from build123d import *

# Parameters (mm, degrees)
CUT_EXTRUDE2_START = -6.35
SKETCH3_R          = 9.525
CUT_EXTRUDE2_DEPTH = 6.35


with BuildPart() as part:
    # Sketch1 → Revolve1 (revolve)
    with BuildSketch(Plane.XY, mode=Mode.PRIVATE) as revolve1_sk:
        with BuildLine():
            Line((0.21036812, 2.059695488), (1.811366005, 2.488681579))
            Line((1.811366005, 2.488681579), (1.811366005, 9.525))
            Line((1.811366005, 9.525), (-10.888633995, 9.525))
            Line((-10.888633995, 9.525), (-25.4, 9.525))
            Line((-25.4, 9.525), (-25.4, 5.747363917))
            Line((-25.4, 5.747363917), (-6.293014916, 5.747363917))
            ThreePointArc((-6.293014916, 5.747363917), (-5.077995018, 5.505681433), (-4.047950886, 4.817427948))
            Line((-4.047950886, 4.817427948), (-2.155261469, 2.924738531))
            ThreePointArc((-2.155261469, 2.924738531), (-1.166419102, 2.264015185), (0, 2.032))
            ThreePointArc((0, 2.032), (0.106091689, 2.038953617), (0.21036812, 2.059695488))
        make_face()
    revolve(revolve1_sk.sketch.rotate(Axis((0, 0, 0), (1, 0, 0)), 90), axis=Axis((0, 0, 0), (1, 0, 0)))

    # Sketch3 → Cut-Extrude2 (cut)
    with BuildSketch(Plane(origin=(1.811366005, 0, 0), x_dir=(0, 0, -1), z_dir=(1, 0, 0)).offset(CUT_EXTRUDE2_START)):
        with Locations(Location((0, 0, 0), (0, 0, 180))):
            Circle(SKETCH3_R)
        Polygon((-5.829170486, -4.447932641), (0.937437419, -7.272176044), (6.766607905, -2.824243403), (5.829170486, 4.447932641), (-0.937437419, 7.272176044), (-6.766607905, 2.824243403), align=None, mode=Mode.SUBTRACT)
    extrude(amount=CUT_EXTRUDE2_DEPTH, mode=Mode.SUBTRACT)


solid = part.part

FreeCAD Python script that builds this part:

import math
import FreeCAD as App
import Part
import Sketcher
Q = App.Units.Quantity


def add_polygon(sketch, points):
    """Adds a closed chain of lines whose ends are joined by coincident constraints."""
    first, n = sketch.GeometryCount, len(points)
    for a, b in zip(points, points[1:] + points[:1]):
        sketch.addGeometry(Part.LineSegment(App.Vector(*a, 0), App.Vector(*b, 0)), False)
    for i in range(n):
        sketch.addConstraint(Sketcher.Constraint("Coincident", first + i, 2, first + (i + 1) % n, 1))

doc = App.newDocument("Part")
params = doc.addObject("Spreadsheet::Sheet", "Params")
for row, (alias, value) in enumerate([
    ("sketch1_radius", "0.12 in"),
    ("sketch1_radius2", "0.125 in"),
    ("sketch1_radius3", "0.032 in"),
    ("revolution_angle", "360 deg"),
    ("sketch2_diameter", "0.75 in"),
    ("pocket1_length", "0.25 in"),
], start=1):
    params.set(f"A{row}", alias)
    params.set(f"B{row}", "=" + value)
    params.setAlias(f"B{row}", alias)

body = doc.addObject("PartDesign::Body", "Body")

sketch1 = body.newObject("Sketcher::SketchObject", "Sketch")
sketch1.AttachmentSupport = (doc.getObject("XY_Plane"), [""])
sketch1.MapMode = "FlatFace"
sketch1.addGeometry([
    Part.LineSegment(App.Vector(0.210368, 2.059695, 0), App.Vector(1.811366, 2.488682, 0)),
    Part.LineSegment(App.Vector(1.811366, 2.488682, 0), App.Vector(1.811366, 9.525, 0)),
    Part.LineSegment(App.Vector(1.811366, 9.525, 0), App.Vector(-25.4, 9.525, 0)),
    Part.LineSegment(App.Vector(-25.4, 9.525, 0), App.Vector(-25.4, 5.747364, 0)),
    Part.LineSegment(App.Vector(-25.4, 5.747364, 0), App.Vector(-6.293015, 5.747364, 0)),
    Part.ArcOfCircle(Part.Circle(App.Vector(-6.293015, 2.572364, 0), App.Vector(0, 0, 1), 3.175), math.radians(45), math.radians(90)),
    Part.LineSegment(App.Vector(-4.047951, 4.817428, 0), App.Vector(-2.155261, 2.924739, 0)),
    Part.ArcOfCircle(Part.Circle(App.Vector(0, 5.08, 0), App.Vector(0, 0, 1), 3.048), math.radians(-135), math.radians(-90)),
    Part.ArcOfCircle(Part.Circle(App.Vector(0, 2.8448, 0), App.Vector(0, 0, 1), 0.8128), math.radians(-90), math.radians(-75.000001)),
], False)
sketch1.addConstraint([
    Sketcher.Constraint("Coincident", 0, 2, 1, 1),
    Sketcher.Constraint("Coincident", 1, 2, 2, 1),
    Sketcher.Constraint("Coincident", 2, 2, 3, 1),
    Sketcher.Constraint("Coincident", 3, 2, 4, 1),
    Sketcher.Constraint("Tangent", 4, 2, 5, 2),
    Sketcher.Constraint("Tangent", 5, 1, 6, 1),
    Sketcher.Constraint("Tangent", 6, 2, 7, 1),
    Sketcher.Constraint("Tangent", 7, 2, 8, 1),
    Sketcher.Constraint("Tangent", 8, 2, 0, 1),
    Sketcher.Constraint("Vertical", 1),
    Sketcher.Constraint("Horizontal", 2),
    Sketcher.Constraint("Vertical", 3),
    Sketcher.Constraint("Horizontal", 4),
    Sketcher.Constraint("PointOnObject", 7, 3, -2),
    Sketcher.Constraint("PointOnObject", 8, 3, -2),
    Sketcher.Constraint("Radius", 7, Q("0.12 in")),
    Sketcher.Constraint("DistanceX", 2, 2, -1, 1, Q("1 in")),
    Sketcher.Constraint("Angle", 0, Q("15 deg")),
    Sketcher.Constraint("Angle", 6, Q("-45 deg")),
    Sketcher.Constraint("Radius", 5, Q("0.125 in")),
    Sketcher.Constraint("Radius", 8, Q("0.032 in")),
    Sketcher.Constraint("DistanceY", -1, 1, 7, 3, Q("0.2 in")),
    Sketcher.Constraint("DistanceY", -1, 1, 1, 2, Q("0.375 in")),
    Sketcher.Constraint("DistanceY", 1, 1, 1, 2, 7.036318),
    Sketcher.Constraint("DistanceX", 4, 1, 4, 2, 19.106985),
])
sketch1.setExpression("Constraints[15]", "Params.sketch1_radius")
sketch1.setExpression("Constraints[19]", "Params.sketch1_radius2")
sketch1.setExpression("Constraints[20]", "Params.sketch1_radius3")
revolution = body.newObject("PartDesign::Revolution", "Revolution")
revolution.Profile = sketch1
revolution.ReferenceAxis = (sketch1, ["H_Axis"])
revolution.setExpression("Angle", "Params.revolution_angle")

sketch2 = body.newObject("Sketcher::SketchObject", "Sketch001")
sketch2.AttachmentSupport = (doc.getObject("YZ_Plane"), [""])
sketch2.MapMode = "FlatFace"
sketch2.AttachmentOffset = App.Placement(App.Vector(0, 0, -4.538634), App.Rotation())
sketch2.addGeometry(Part.Circle(App.Vector(0, 0, 0), App.Vector(0, 0, 1), 9.525), False)
add_polygon(sketch2, [(-7.272176, -0.937437), (-4.447933, 5.82917), (2.824243, 6.766608), (7.272176, 0.937437), (4.447933, -5.82917), (-2.824243, -6.766608)])
sketch2.addConstraint([
    Sketcher.Constraint("Coincident", 0, 3, -1, 1),
    Sketcher.Constraint("Symmetric", 1, 2, 4, 2, -1, 1),
    Sketcher.Constraint("Symmetric", 2, 2, 5, 2, -1, 1),
    Sketcher.Constraint("Symmetric", 3, 2, 6, 2, -1, 1),
    Sketcher.Constraint("Equal", 1, 2),
    Sketcher.Constraint("Equal", 2, 3),
    Sketcher.Constraint("Diameter", 0, Q("0.75 in")),
    Sketcher.Constraint("Distance", 1, 7.332348),
    Sketcher.Constraint("DistanceY", -1, 1, 1, 2, 5.82917),
    Sketcher.Constraint("DistanceY", 3, 2, 2, 2, 5.82917),
    Sketcher.Constraint("DistanceX", 1, 2, 3, 2, 11.720109),
])
sketch2.setExpression("Constraints[12]", "Params.sketch2_diameter")
pocket1 = body.newObject("PartDesign::Pocket", "Pocket")
pocket1.Profile = sketch2
pocket1.setExpression("Length", "Params.pocket1_length")
pocket1.Reversed = True

doc.recompute()
